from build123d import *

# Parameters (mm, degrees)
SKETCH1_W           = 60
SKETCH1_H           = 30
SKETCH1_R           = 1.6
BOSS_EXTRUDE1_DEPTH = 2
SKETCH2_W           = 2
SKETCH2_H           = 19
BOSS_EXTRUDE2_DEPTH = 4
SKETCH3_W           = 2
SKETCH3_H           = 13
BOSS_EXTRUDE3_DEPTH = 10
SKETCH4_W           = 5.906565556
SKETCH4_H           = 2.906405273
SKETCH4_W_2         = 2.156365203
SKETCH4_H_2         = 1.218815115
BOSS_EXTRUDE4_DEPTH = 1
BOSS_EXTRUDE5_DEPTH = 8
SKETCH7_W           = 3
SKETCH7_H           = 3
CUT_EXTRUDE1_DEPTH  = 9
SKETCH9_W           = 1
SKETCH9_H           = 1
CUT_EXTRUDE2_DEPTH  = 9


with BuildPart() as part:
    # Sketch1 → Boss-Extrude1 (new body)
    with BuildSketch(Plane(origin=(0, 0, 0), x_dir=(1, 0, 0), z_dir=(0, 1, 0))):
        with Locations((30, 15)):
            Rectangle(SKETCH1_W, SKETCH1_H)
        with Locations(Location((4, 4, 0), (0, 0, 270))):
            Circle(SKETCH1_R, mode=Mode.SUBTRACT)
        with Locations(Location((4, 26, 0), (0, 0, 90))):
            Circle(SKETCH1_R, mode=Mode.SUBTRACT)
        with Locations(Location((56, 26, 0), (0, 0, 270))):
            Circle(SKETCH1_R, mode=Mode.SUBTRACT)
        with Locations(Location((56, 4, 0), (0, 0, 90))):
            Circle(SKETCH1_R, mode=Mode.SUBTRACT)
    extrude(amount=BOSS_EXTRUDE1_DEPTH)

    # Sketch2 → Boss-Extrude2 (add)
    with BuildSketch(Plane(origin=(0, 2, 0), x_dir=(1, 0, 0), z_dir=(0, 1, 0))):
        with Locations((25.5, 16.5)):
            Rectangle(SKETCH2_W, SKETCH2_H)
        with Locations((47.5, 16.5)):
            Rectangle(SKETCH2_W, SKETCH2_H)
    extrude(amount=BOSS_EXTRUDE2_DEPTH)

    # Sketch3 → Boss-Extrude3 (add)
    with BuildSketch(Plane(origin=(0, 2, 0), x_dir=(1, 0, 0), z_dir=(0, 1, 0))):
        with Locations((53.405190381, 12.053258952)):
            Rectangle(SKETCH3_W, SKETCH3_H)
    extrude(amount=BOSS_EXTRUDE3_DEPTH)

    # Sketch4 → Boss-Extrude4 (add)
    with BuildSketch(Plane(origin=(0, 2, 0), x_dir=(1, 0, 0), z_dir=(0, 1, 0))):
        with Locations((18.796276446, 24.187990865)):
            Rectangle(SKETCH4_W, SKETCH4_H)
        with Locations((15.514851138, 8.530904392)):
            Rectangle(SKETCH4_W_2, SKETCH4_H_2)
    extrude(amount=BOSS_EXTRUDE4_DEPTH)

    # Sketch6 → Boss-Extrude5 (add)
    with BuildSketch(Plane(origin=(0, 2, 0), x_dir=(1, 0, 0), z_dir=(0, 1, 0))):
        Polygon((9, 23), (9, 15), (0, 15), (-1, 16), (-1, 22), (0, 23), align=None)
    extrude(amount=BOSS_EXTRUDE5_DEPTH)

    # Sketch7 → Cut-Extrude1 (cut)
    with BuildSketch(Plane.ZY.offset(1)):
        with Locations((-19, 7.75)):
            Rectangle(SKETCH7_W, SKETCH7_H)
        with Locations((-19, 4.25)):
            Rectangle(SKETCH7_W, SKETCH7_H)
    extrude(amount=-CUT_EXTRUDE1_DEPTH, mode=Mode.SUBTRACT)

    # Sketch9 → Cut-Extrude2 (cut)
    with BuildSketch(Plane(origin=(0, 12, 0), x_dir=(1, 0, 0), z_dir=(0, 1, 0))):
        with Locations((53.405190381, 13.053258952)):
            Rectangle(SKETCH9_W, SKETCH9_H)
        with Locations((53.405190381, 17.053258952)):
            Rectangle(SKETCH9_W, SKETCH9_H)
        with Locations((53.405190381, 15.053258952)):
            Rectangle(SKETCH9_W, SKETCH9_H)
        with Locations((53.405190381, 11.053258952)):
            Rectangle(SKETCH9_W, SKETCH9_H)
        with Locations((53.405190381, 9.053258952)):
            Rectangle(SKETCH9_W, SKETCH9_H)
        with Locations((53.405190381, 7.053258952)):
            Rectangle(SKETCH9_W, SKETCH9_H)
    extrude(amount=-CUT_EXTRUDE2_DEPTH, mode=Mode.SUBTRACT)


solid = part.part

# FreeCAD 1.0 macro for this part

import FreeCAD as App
import Part
import Sketcher
Q = App.Units.Quantity


def add_polygon(sketch, points):
    """Adds a closed chain of lines whose ends are joined by coincident constraints."""
    first, n = sketch.GeometryCount, len(points)
    for a, b in zip(points, points[1:] + points[:1]):
        sketch.addGeometry(Part.LineSegment(App.Vector(*a, 0), App.Vector(*b, 0)), False)
    for i in range(n):
        sketch.addConstraint(Sketcher.Constraint("Coincident", first + i, 2, first + (i + 1) % n, 1))

doc = App.newDocument("Part")
body = doc.addObject("PartDesign::Body", "Body")

sketch1 = body.newObject("Sketcher::SketchObject", "Sketch")
sketch1.AttachmentSupport = (doc.getObject("XZ_Plane"), [""])
sketch1.MapMode = "FlatFace"
add_polygon(sketch1, [(0, -30), (0, 0), (60, 0), (60, -30)])
sketch1.addGeometry(Part.Circle(App.Vector(4, -4, 0), App.Vector(0, 0, 1), 1.6), False)
sketch1.addGeometry(Part.Circle(App.Vector(56, -4, 0), App.Vector(0, 0, 1), 1.6), False)
sketch1.addGeometry(Part.Circle(App.Vector(4, -26, 0), App.Vector(0, 0, 1), 1.6), False)
sketch1.addGeometry(Part.Circle(App.Vector(56, -26, 0), App.Vector(0, 0, 1), 1.6), False)
sketch1.addConstraint(Sketcher.Constraint("Vertical", 0))
sketch1.addConstraint(Sketcher.Constraint("Horizontal", 1))
sketch1.addConstraint(Sketcher.Constraint("Vertical", 2))
sketch1.addConstraint(Sketcher.Constraint("Horizontal", 3))
sketch1.addConstraint(Sketcher.Constraint("Coincident", 0, 2, -1, 1))
sketch1.addConstraint(Sketcher.Constraint("Equal", 4, 5))
sketch1.addConstraint(Sketcher.Constraint("Equal", 5, 6))
sketch1.addConstraint(Sketcher.Constraint("Equal", 6, 7))
sketch1.addConstraint(Sketcher.Constraint("Horizontal", 4, 3, 5, 3))
sketch1.addConstraint(Sketcher.Constraint("Horizontal", 6, 3, 7, 3))
sketch1.addConstraint(Sketcher.Constraint("Vertical", 4, 3, 6, 3))
sketch1.addConstraint(Sketcher.Constraint("Vertical", 5, 3, 7, 3))
sketch1.addConstraint(Sketcher.Constraint("Diameter", 4, Q("3.2 mm")))
sketch1.addConstraint(Sketcher.Constraint("DistanceX", 1, 1, 1, 2, Q("60 mm")))
sketch1.addConstraint(Sketcher.Constraint("DistanceY", 0, 1, 0, 2, Q("30 mm")))
sketch1.addConstraint(Sketcher.Constraint("DistanceX", -1, 1, 4, 3, Q("4 mm")))
sketch1.addConstraint(Sketcher.Constraint("DistanceY", 4, 3, -1, 1, Q("4 mm")))
sketch1.addConstraint(Sketcher.Constraint("DistanceX", -1, 1, 5, 3, Q("56 mm")))
sketch1.addConstraint(Sketcher.Constraint("DistanceY", 6, 3, -1, 1, Q("26 mm")))
pad1 = body.newObject("PartDesign::Pad", "Pad")
pad1.Profile = sketch1
pad1.Length = 2
pad1.Reversed = True

sketch2 = body.newObject("Sketcher::SketchObject", "Sketch001")
sketch2.AttachmentSupport = (doc.getObject("XZ_Plane"), [""])
sketch2.MapMode = "FlatFace"
sketch2.AttachmentOffset = App.Placement(App.Vector(0, 0, -2), App.Rotation())
add_polygon(sketch2, [(24.5, -26), (24.5, -7), (26.5, -7), (26.5, -26)])
add_polygon(sketch2, [(46.5, -26), (46.5, -7), (48.5, -7), (48.5, -26)])
sketch2.addConstraint(Sketcher.Constraint("Vertical", 0))
sketch2.addConstraint(Sketcher.Constraint("Horizontal", 1))
sketch2.addConstraint(Sketcher.Constraint("Vertical", 2))
sketch2.addConstraint(Sketcher.Constraint("Horizontal", 3))
sketch2.addConstraint(Sketcher.Constraint("Vertical", 4))
sketch2.addConstraint(Sketcher.Constraint("Horizontal", 5))
sketch2.addConstraint(Sketcher.Constraint("Vertical", 6))
sketch2.addConstraint(Sketcher.Constraint("Horizontal", 7))
sketch2.addConstraint(Sketcher.Constraint("Horizontal", 1, 2, 4, 2))
sketch2.addConstraint(Sketcher.Constraint("Horizontal", 3, 2, 6, 2))
sketch2.addConstraint(Sketcher.Constraint("Equal", 3, 5))
sketch2.addConstraint(Sketcher.Constraint("DistanceX", 1, 1, 1, 2, Q("2 mm")))
sketch2.addConstraint(Sketcher.Constraint("DistanceY", 0, 1, 0, 2, Q("19 mm")))
sketch2.addConstraint(Sketcher.Constraint("DistanceY", 0, 2, -1, 1, Q("7 mm")))
sketch2.addConstraint(Sketcher.Constraint("DistanceX", 1, 2, 4, 2, Q("20 mm")))
sketch2.addConstraint(Sketcher.Constraint("DistanceX", -1, 1, 0, 2, Q("24.5 mm")))
pad2 = body.newObject("PartDesign::Pad", "Pad001")
pad2.Profile = sketch2
pad2.Length = 4
pad2.Reversed = True

sketch3 = body.newObject("Sketcher::SketchObject", "Sketch002")
sketch3.AttachmentSupport = (doc.getObject("XZ_Plane"), [""])
sketch3.MapMode = "FlatFace"
sketch3.AttachmentOffset = App.Placement(App.Vector(0, 0, -2), App.Rotation())
add_polygon(sketch3, [(52.40519, -18.553259), (52.40519, -5.553259), (54.40519, -5.553259), (54.40519, -18.553259)])
sketch3.addConstraint(Sketcher.Constraint("Vertical", 0))
sketch3.addConstraint(Sketcher.Constraint("Horizontal", 1))
sketch3.addConstraint(Sketcher.Constraint("Vertical", 2))
sketch3.addConstraint(Sketcher.Constraint("Horizontal", 3))
sketch3.addConstraint(Sketcher.Constraint("DistanceX", 1, 1, 1, 2, Q("2 mm")))
sketch3.addConstraint(Sketcher.Constraint("DistanceY", 0, 1, 0, 2, Q("13 mm")))
sketch3.addConstraint(Sketcher.Constraint("DistanceX", -1, 1, 0, 2, Q("52.40519 mm")))
sketch3.addConstraint(Sketcher.Constraint("DistanceY", 0, 2, -1, 1, Q("5.553259 mm")))
pad3 = body.newObject("PartDesign::Pad", "Pad002")
pad3.Profile = sketch3
pad3.Length = 10
pad3.Reversed = True

sketch4 = body.newObject("Sketcher::SketchObject", "Sketch003")
sketch4.AttachmentSupport = (doc.getObject("XZ_Plane"), [""])
sketch4.MapMode = "FlatFace"
sketch4.AttachmentOffset = App.Placement(App.Vector(0, 0, -2), App.Rotation())
add_polygon(sketch4, [(15.842994, -25.641194), (15.842994, -22.734788), (21.749559, -22.734788), (21.749559, -25.641194)])
add_polygon(sketch4, [(14.436669, -9.140312), (14.436669, -7.921497), (16.593034, -7.921497), (16.593034, -9.140312)])
sketch4.addConstraint(Sketcher.Constraint("Vertical", 0))
sketch4.addConstraint(Sketcher.Constraint("Horizontal", 1))
sketch4.addConstraint(Sketcher.Constraint("Vertical", 2))
sketch4.addConstraint(Sketcher.Constraint("Horizontal", 3))
sketch4.addConstraint(Sketcher.Constraint("Vertical", 4))
sketch4.addConstraint(Sketcher.Constraint("Horizontal", 5))
sketch4.addConstraint(Sketcher.Constraint("Vertical", 6))
sketch4.addConstraint(Sketcher.Constraint("Horizontal", 7))
sketch4.addConstraint(Sketcher.Constraint("DistanceX", 1, 1, 1, 2, Q("5.906566 mm")))
sketch4.addConstraint(Sketcher.Constraint("DistanceX", 5, 1, 5, 2, Q("2.156365 mm")))
sketch4.addConstraint(Sketcher.Constraint("DistanceY", 0, 1, 0, 2, Q("2.906405 mm")))
sketch4.addConstraint(Sketcher.Constraint("DistanceY", 4, 1, 4, 2, Q("1.218815 mm")))
sketch4.addConstraint(Sketcher.Constraint("DistanceY", 0, 2, -1, 1, Q("22.734788 mm")))
sketch4.addConstraint(Sketcher.Constraint("DistanceX", -1, 1, 1, 2, Q("21.749559 mm")))
sketch4.addConstraint(Sketcher.Constraint("DistanceX", -1, 1, 4, 2, Q("14.436669 mm")))
sketch4.addConstraint(Sketcher.Constraint("DistanceY", 6, 2, -1, 1, Q("9.140312 mm")))
pad4 = body.newObject("PartDesign::Pad", "Pad003")
pad4.Profile = sketch4
pad4.Length = 1
pad4.Reversed = True

sketch5 = body.newObject("Sketcher::SketchObject", "Sketch004")
sketch5.AttachmentSupport = (doc.getObject("XZ_Plane"), [""])
sketch5.MapMode = "FlatFace"
sketch5.AttachmentOffset = App.Placement(App.Vector(0, 0, -2), App.Rotation())
add_polygon(sketch5, [(9, -15), (9, -23), (0, -23), (-1, -22), (-1, -16), (0, -15)])
sketch5.addConstraint(Sketcher.Constraint("Vertical", 0))
sketch5.addConstraint(Sketcher.Constraint("Horizontal", 1))
sketch5.addConstraint(Sketcher.Constraint("Vertical", 3))
sketch5.addConstraint(Sketcher.Constraint("Horizontal", 5))
sketch5.addConstraint(Sketcher.Constraint("PointOnObject", 1, 2, -2))
sketch5.addConstraint(Sketcher.Constraint("PointOnObject", 4, 2, -2))
sketch5.addConstraint(Sketcher.Constraint("Perpendicular", 2, 4))
sketch5.addConstraint(Sketcher.Constraint("Equal", 2, 4))
sketch5.addConstraint(Sketcher.Constraint("DistanceX", 1, 2, 1, 1, Q("9 mm")))
sketch5.addConstraint(Sketcher.Constraint("DistanceY", 0, 2, 0, 1, Q("8 mm")))
sketch5.addConstraint(Sketcher.Constraint("DistanceY", 3, 1, 3, 2, Q("6 mm")))
sketch5.addConstraint(Sketcher.Constraint("DistanceY", 0, 2, -1, 1, Q("23 mm")))
pad5 = body.newObject("PartDesign::Pad", "Pad004")
pad5.Profile = sketch5
pad5.Length = 8
pad5.Reversed = True

sketch6 = body.newObject("Sketcher::SketchObject", "Sketch005")
sketch6.AttachmentSupport = (doc.getObject("YZ_Plane"), [""])
sketch6.MapMode = "FlatFace"
sketch6.AttachmentOffset = App.Placement(App.Vector(0, 0, -1), App.Rotation())
add_polygon(sketch6, [(9.25, -20.5), (6.25, -20.5), (6.25, -17.5), (9.25, -17.5)])
add_polygon(sketch6, [(5.75, -20.5), (2.75, -20.5), (2.75, -17.5), (5.75, -17.5)])
sketch6.addConstraint(Sketcher.Constraint("Horizontal", 0))
sketch6.addConstraint(Sketcher.Constraint("Vertical", 1))
sketch6.addConstraint(Sketcher.Constraint("Horizontal", 2))
sketch6.addConstraint(Sketcher.Constraint("Vertical", 3))
sketch6.addConstraint(Sketcher.Constraint("Horizontal", 4))
sketch6.addConstraint(Sketcher.Constraint("Vertical", 5))
sketch6.addConstraint(Sketcher.Constraint("Horizontal", 6))
sketch6.addConstraint(Sketcher.Constraint("Vertical", 7))
sketch6.addConstraint(Sketcher.Constraint("Horizontal", 3, 2, 4, 2))
sketch6.addConstraint(Sketcher.Constraint("Horizontal", 2, 2, 5, 2))
sketch6.addConstraint(Sketcher.Constraint("Equal", 2, 4))
sketch6.addConstraint(Sketcher.Constraint("Equal", 6, 1))
sketch6.addConstraint(Sketcher.Constraint("DistanceX", 0, 2, 0, 1, Q("3 mm")))
sketch6.addConstraint(Sketcher.Constraint("DistanceY", 0, 2, -1, 1, Q("20.5 mm")))
sketch6.addConstraint(Sketcher.Constraint("DistanceX", 4, 2, 0, 2, Q("3.5 mm")))
sketch6.addConstraint(Sketcher.Constraint("DistanceX", -1, 1, 0, 2, Q("6.25 mm")))
pocket1 = body.newObject("PartDesign::Pocket", "Pocket")
pocket1.Profile = sketch6
pocket1.Length = 9
pocket1.Reversed = True

sketch7 = body.newObject("Sketcher::SketchObject", "Sketch006")
sketch7.AttachmentSupport = (doc.getObject("XZ_Plane"), [""])
sketch7.MapMode = "FlatFace"
sketch7.AttachmentOffset = App.Placement(App.Vector(0, 0, -12), App.Rotation())
add_polygon(sketch7, [(52.90519, -13.553259), (52.90519, -12.553259), (53.90519, -12.553259), (53.90519, -13.553259)])
add_polygon(sketch7, [(52.90519, -17.553259), (52.90519, -16.553259), (53.90519, -16.553259), (53.90519, -17.553259)])
add_polygon(sketch7, [(52.90519, -15.553259), (52.90519, -14.553259), (53.90519, -14.553259), (53.90519, -15.553259)])
add_polygon(sketch7, [(52.90519, -11.553259), (52.90519, -10.553259), (53.90519, -10.553259), (53.90519, -11.553259)])
add_polygon(sketch7, [(52.90519, -9.553259), (52.90519, -8.553259), (53.90519, -8.553259), (53.90519, -9.553259)])
add_polygon(sketch7, [(52.90519, -7.553259), (52.90519, -6.553259), (53.90519, -6.553259), (53.90519, -7.553259)])
sketch7.addConstraint(Sketcher.Constraint("Vertical", 0))
sketch7.addConstraint(Sketcher.Constraint("Horizontal", 1))
sketch7.addConstraint(Sketcher.Constraint("Vertical", 2))
sketch7.addConstraint(Sketcher.Constraint("Horizontal", 3))
sketch7.addConstraint(Sketcher.Constraint("Vertical", 4))
sketch7.addConstraint(Sketcher.Constraint("Horizontal", 5))
sketch7.addConstraint(Sketcher.Constraint("Vertical", 6))
sketch7.addConstraint(Sketcher.Constraint("Horizontal", 7))
sketch7.addConstraint(Sketcher.Constraint("Vertical", 8))
sketch7.addConstraint(Sketcher.Constraint("Horizontal", 9))
sketch7.addConstraint(Sketcher.Constraint("Vertical", 10))
sketch7.addConstraint(Sketcher.Constraint("Horizontal", 11))
sketch7.addConstraint(Sketcher.Constraint("Vertical", 12))
sketch7.addConstraint(Sketcher.Constraint("Horizontal", 13))
sketch7.addConstraint(Sketcher.Constraint("Vertical", 14))
sketch7.addConstraint(Sketcher.Constraint("Horizontal", 15))
sketch7.addConstraint(Sketcher.Constraint("Vertical", 16))
sketch7.addConstraint(Sketcher.Constraint("Horizontal", 17))
sketch7.addConstraint(Sketcher.Constraint("Vertical", 18))
sketch7.addConstraint(Sketcher.Constraint("Horizontal", 19))
sketch7.addConstraint(Sketcher.Constraint("Vertical", 20))
sketch7.addConstraint(Sketcher.Constraint("Horizontal", 21))
sketch7.addConstraint(Sketcher.Constraint("Vertical", 22))
sketch7.addConstraint(Sketcher.Constraint("Horizontal", 23))
sketch7.addConstraint(Sketcher.Constraint("Vertical", 3, 2, 4, 2))
sketch7.addConstraint(Sketcher.Constraint("Vertical", 2, 2, 5, 2))
sketch7.addConstraint(Sketcher.Constraint("Vertical", 7, 2, 8, 2))
sketch7.addConstraint(Sketcher.Constraint("Vertical", 6, 2, 9, 2))
sketch7.addConstraint(Sketcher.Constraint("Vertical", 11, 2, 12, 2))
sketch7.addConstraint(Sketcher.Constraint("Vertical", 10, 2, 13, 2))
sketch7.addConstraint(Sketcher.Constraint("Vertical", 15, 2, 16, 2))
sketch7.addConstraint(Sketcher.Constraint("Vertical", 14, 2, 17, 2))
sketch7.addConstraint(Sketcher.Constraint("Vertical", 19, 2, 20, 2))
sketch7.addConstraint(Sketcher.Constraint("Vertical", 18, 2, 21, 2))
sketch7.addConstraint(Sketcher.Constraint("Equal", 23, 0))
sketch7.addConstraint(Sketcher.Constraint("Equal", 2, 4))
sketch7.addConstraint(Sketcher.Constraint("Equal", 6, 8))
sketch7.addConstraint(Sketcher.Constraint("Equal", 10, 12))
sketch7.addConstraint(Sketcher.Constraint("Equal", 14, 16))
sketch7.addConstraint(Sketcher.Constraint("Equal", 18, 20))
sketch7.addConstraint(Sketcher.Constraint("DistanceX", 1, 1, 1, 2, Q("1 mm")))
sketch7.addConstraint(Sketcher.Constraint("DistanceY", 4, 2, 3, 2, Q("3 mm")))
sketch7.addConstraint(Sketcher.Constraint("DistanceY", 8, 2, 3, 2, Q("1 mm")))
sketch7.addConstraint(Sketcher.Constraint("DistanceY", 0, 2, 12, 2, Q("2 mm")))
sketch7.addConstraint(Sketcher.Constraint("DistanceY", 12, 2, 16, 2, Q("2 mm")))
sketch7.addConstraint(Sketcher.Constraint("DistanceY", 16, 2, 20, 2, Q("2 mm")))
sketch7.addConstraint(Sketcher.Constraint("DistanceX", -1, 1, 0, 2, Q("52.90519 mm")))
sketch7.addConstraint(Sketcher.Constraint("DistanceY", 0, 2, -1, 1, Q("12.553259 mm")))
pocket2 = body.newObject("PartDesign::Pocket", "Pocket001")
pocket2.Profile = sketch7
pocket2.Length = 9
pocket2.Reversed = True

doc.recompute()
